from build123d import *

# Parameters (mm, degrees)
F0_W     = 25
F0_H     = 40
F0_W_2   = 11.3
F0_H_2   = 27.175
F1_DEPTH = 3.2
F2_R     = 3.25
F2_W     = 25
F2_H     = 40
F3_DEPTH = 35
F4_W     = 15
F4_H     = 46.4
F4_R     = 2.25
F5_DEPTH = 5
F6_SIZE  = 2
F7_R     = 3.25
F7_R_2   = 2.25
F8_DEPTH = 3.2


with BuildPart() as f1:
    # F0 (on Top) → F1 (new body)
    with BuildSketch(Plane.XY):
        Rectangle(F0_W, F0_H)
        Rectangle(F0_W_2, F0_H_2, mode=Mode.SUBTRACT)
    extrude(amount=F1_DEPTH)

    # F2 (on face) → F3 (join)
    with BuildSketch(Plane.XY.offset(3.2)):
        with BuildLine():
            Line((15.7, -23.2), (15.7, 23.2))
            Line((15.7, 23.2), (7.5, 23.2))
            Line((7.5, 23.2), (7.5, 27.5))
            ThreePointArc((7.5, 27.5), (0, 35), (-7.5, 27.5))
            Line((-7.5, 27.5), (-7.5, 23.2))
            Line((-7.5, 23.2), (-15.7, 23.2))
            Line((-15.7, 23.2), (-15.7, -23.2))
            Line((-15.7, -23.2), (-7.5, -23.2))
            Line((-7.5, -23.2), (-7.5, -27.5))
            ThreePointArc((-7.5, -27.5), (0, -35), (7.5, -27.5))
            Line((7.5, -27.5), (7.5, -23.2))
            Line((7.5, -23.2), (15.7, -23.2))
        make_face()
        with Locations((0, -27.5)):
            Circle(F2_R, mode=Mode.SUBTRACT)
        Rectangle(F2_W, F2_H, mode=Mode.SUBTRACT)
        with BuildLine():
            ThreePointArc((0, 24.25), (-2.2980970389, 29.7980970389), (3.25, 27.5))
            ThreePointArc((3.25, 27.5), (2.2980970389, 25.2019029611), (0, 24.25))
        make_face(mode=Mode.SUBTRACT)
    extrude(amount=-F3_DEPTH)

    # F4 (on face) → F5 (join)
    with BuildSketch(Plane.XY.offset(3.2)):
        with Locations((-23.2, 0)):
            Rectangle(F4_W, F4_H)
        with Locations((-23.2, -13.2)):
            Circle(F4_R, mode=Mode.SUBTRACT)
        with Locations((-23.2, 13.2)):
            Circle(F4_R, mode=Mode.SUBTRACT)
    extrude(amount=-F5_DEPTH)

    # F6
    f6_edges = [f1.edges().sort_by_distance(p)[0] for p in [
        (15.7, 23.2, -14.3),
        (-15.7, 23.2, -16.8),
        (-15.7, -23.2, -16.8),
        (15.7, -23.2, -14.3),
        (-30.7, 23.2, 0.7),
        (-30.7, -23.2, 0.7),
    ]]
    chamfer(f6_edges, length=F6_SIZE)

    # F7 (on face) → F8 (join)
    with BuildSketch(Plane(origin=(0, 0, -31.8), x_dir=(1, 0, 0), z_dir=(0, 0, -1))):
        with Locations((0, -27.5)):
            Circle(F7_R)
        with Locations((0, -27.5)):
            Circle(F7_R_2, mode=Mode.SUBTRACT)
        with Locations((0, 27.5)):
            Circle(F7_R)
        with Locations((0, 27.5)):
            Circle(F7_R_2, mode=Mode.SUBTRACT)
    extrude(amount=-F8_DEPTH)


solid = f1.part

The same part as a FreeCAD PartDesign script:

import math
import FreeCAD as App
import Part
import Sketcher
Q = App.Units.Quantity


def edges_at(feature, points):
    """Names of the edges that pass closest to the given points."""
    edges = feature.Shape.Edges
    near = lambda p: min(range(len(edges)), key=lambda i: edges[i].distToShape(Part.Vertex(*p))[0])
    return sorted({f"Edge{near(p) + 1}" for p in points})

doc = App.newDocument("Part")
body = doc.addObject("PartDesign::Body", "Body")

# Sketch on XY plane
sketch1 = doc.addObject("Sketcher::SketchObject", "Sketch")
body.addObject(sketch1)
sketch1.AttachmentSupport = (doc.XY_Plane, [""])
sketch1.MapMode = "FlatFace"
sketch1.addGeometry([
    Part.LineSegment(App.Vector(-12, 20, 0), App.Vector(-12, -20, 0)),  # 0
    Part.LineSegment(App.Vector(-12, -20, 0), App.Vector(12, -20, 0)),  # 1
    Part.LineSegment(App.Vector(12, -20, 0), App.Vector(12, 20, 0)),  # 2
    Part.LineSegment(App.Vector(12, 20, 0), App.Vector(-12, 20, 0)),  # 3
    Part.LineSegment(App.Vector(6, -14, 0), App.Vector(-6, -14, 0)),  # 4
    Part.LineSegment(App.Vector(-6, -14, 0), App.Vector(-6, 14, 0)),  # 5
    Part.LineSegment(App.Vector(-6, 14, 0), App.Vector(6, 14, 0)),  # 6
    Part.LineSegment(App.Vector(6, 14, 0), App.Vector(6, -14, 0)),  # 7
], False)
sketch1.addConstraint([
    Sketcher.Constraint("Coincident", 0, 2, 1, 1),
    Sketcher.Constraint("Coincident", 1, 2, 2, 1),
    Sketcher.Constraint("Coincident", 2, 2, 3, 1),
    Sketcher.Constraint("Coincident", 3, 2, 0, 1),
    Sketcher.Constraint("Coincident", 4, 2, 5, 1),
    Sketcher.Constraint("Coincident", 5, 2, 6, 1),
    Sketcher.Constraint("Coincident", 6, 2, 7, 1),
    Sketcher.Constraint("Coincident", 7, 2, 4, 1),
    Sketcher.Constraint("Vertical", 0),
    Sketcher.Constraint("Horizontal", 1),
    Sketcher.Constraint("Vertical", 2),
    Sketcher.Constraint("Horizontal", 3),
    Sketcher.Constraint("Horizontal", 4),
    Sketcher.Constraint("Vertical", 5),
    Sketcher.Constraint("Horizontal", 6),
    Sketcher.Constraint("Vertical", 7),
    Sketcher.Constraint("Symmetric", 0, 2, 2, 2, -1, 1),
    Sketcher.Constraint("Symmetric", 4, 2, 6, 2, -1, 1),
    Sketcher.Constraint("DistanceX", 1, 1, 1, 2, Q("25 mm")),
    Sketcher.Constraint("DistanceY", 0, 2, 0, 1, Q("40 mm")),
    Sketcher.Constraint("DistanceX", 4, 2, 4, 1, Q("11.3 mm")),
    Sketcher.Constraint("DistanceY", 5, 1, 5, 2, Q("27.175 mm")),
])
pad1 = doc.addObject("PartDesign::Pad", "Pad")
body.addObject(pad1)
pad1.Profile = sketch1
pad1.Length = 3.2

# Sketch on XY plane
sketch2 = doc.addObject("Sketcher::SketchObject", "Sketch001")
body.addObject(sketch2)
sketch2.AttachmentSupport = (doc.XY_Plane, [""])
sketch2.MapMode = "FlatFace"
sketch2.AttachmentOffset = App.Placement(App.Vector(0, 0, 3.2), App.Rotation())
sketch2.addGeometry([
    Part.LineSegment(App.Vector(15.7, -23.2, 0), App.Vector(15.7, 23.2, 0)),  # 0
    Part.LineSegment(App.Vector(15.7, 23.2, 0), App.Vector(7.5, 23.2, 0)),  # 1
    Part.LineSegment(App.Vector(7.5, 23.2, 0), App.Vector(7.5, 27.5, 0)),  # 2
    Part.ArcOfCircle(Part.Circle(App.Vector(0, 27.5, 0), App.Vector(0, 0, 1), 7.5), math.radians(0), math.radians(180)),  # 3
    Part.LineSegment(App.Vector(-7.5, 27.5, 0), App.Vector(-7.5, 23.2, 0)),  # 4
    Part.LineSegment(App.Vector(-7.5, 23.2, 0), App.Vector(-15.7, 23.2, 0)),  # 5
    Part.LineSegment(App.Vector(-15.7, 23.2, 0), App.Vector(-15.7, -23.2, 0)),  # 6
    Part.LineSegment(App.Vector(-15.7, -23.2, 0), App.Vector(-7.5, -23.2, 0)),  # 7
    Part.LineSegment(App.Vector(-7.5, -23.2, 0), App.Vector(-7.5, -27.5, 0)),  # 8
    Part.ArcOfCircle(Part.Circle(App.Vector(0, -27.5, 0), App.Vector(0, 0, 1), 7.5), math.radians(180), math.radians(360)),  # 9
    Part.LineSegment(App.Vector(7.5, -27.5, 0), App.Vector(7.5, -23.2, 0)),  # 10
    Part.LineSegment(App.Vector(7.5, -23.2, 0), App.Vector(15.7, -23.2, 0)),  # 11
    Part.Circle(App.Vector(0, -27.5, 0), App.Vector(0, 0, 1), 3.2),  # 12
    Part.LineSegment(App.Vector(12.5, -20, 0), App.Vector(-12.5, -20, 0)),  # 13
    Part.LineSegment(App.Vector(-12.5, -20, 0), App.Vector(-12.5, 20, 0)),  # 14
    Part.LineSegment(App.Vector(-12.5, 20, 0), App.Vector(12.5, 20, 0)),  # 15
    Part.LineSegment(App.Vector(12.5, 20, 0), App.Vector(12.5, -20, 0)),  # 16
    Part.ArcOfCircle(Part.Circle(App.Vector(0, 27.5, 0), App.Vector(0, 0, 1), 3.2), math.radians(-90), math.radians(0)),  # 17
    Part.ArcOfCircle(Part.Circle(App.Vector(0, 27.5, 0), App.Vector(0, 0, 1), 3.2), math.radians(0), math.radians(270)),  # 18
], False)
sketch2.addConstraint([
    Sketcher.Constraint("Coincident", 0, 2, 1, 1),
    Sketcher.Constraint("Coincident", 1, 2, 2, 1),
    Sketcher.Constraint("Tangent", 2, 2, 3, 1),
    Sketcher.Constraint("Tangent", 3, 2, 4, 1),
    Sketcher.Constraint("Coincident", 4, 2, 5, 1),
    Sketcher.Constraint("Coincident", 5, 2, 6, 1),
    Sketcher.Constraint("Coincident", 6, 2, 7, 1),
    Sketcher.Constraint("Coincident", 7, 2, 8, 1),
    Sketcher.Constraint("Tangent", 8, 2, 9, 1),
    Sketcher.Constraint("Tangent", 9, 2, 10, 1),
    Sketcher.Constraint("Coincident", 10, 2, 11, 1),
    Sketcher.Constraint("Coincident", 11, 2, 0, 1),
    Sketcher.Constraint("Coincident", 13, 2, 14, 1),
    Sketcher.Constraint("Coincident", 14, 2, 15, 1),
    Sketcher.Constraint("Coincident", 15, 2, 16, 1),
    Sketcher.Constraint("Coincident", 16, 2, 13, 1),
    Sketcher.Constraint("Tangent", 17, 1, 18, 2),
    Sketcher.Constraint("Coincident", 18, 1, 17, 2),
    Sketcher.Constraint("Vertical", 0),
    Sketcher.Constraint("Horizontal", 1),
    Sketcher.Constraint("Vertical", 2),
    Sketcher.Constraint("Vertical", 4),
    Sketcher.Constraint("Horizontal", 5),
    Sketcher.Constraint("Vertical", 6),
    Sketcher.Constraint("Horizontal", 7),
    Sketcher.Constraint("Vertical", 8),
    Sketcher.Constraint("Vertical", 10),
    Sketcher.Constraint("Horizontal", 11),
    Sketcher.Constraint("Horizontal", 13),
    Sketcher.Constraint("Vertical", 14),
    Sketcher.Constraint("Horizontal", 15),
    Sketcher.Constraint("Vertical", 16),
    Sketcher.Constraint("Coincident", 12, 3, 9, 3),
    Sketcher.Constraint("Coincident", 17, 3, 3, 3),
    Sketcher.Constraint("Equal", 3, 9),
    Sketcher.Constraint("Equal", 12, 17),
    Sketcher.Constraint("Symmetric", 3, 3, 9, 3, -1, 1),
    Sketcher.Constraint("Symmetric", 0, 2, 6, 2, -1, 1),
    Sketcher.Constraint("Symmetric", 13, 2, 15, 2, -1, 1),
    Sketcher.Constraint("Symmetric", 1, 2, 4, 2, -2),
    Sketcher.Constraint("PointOnObject", 17, 1, -2),
    Sketcher.Constraint("Horizontal", 7, 2, 10, 2),
    Sketcher.Constraint("Horizontal", 3, 2, 18, 1),
    Sketcher.Constraint("Diameter", 12, Q("6.5 mm")),
    Sketcher.Constraint("Radius", 3, Q("7.5 mm")),
    Sketcher.Constraint("DistanceX", 13, 2, 13, 1, Q("25 mm")),
    Sketcher.Constraint("DistanceY", 14, 1, 14, 2, Q("40 mm")),
    Sketcher.Constraint("DistanceX", 1, 2, 1, 1, Q("8.2 mm")),
    Sketcher.Constraint("DistanceY", 0, 1, 0, 2, Q("46.4 mm")),
    Sketcher.Constraint("DistanceY", 2, 1, 2, 2, Q("4.3 mm")),
])
pad2 = doc.addObject("PartDesign::Pad", "Pad001")
body.addObject(pad2)
pad2.Profile = sketch2
pad2.Length = 35
pad2.Reversed = True

# Sketch on XY plane
sketch3 = doc.addObject("Sketcher::SketchObject", "Sketch002")
body.addObject(sketch3)
sketch3.AttachmentSupport = (doc.XY_Plane, [""])
sketch3.MapMode = "FlatFace"
sketch3.AttachmentOffset = App.Placement(App.Vector(0, 0, 3.2), App.Rotation())
sketch3.addGeometry([
    Part.LineSegment(App.Vector(-30.7, 23.2, 0), App.Vector(-30.7, -23.2, 0)),  # 0
    Part.LineSegment(App.Vector(-30.7, -23.2, 0), App.Vector(-15.7, -23.2, 0)),  # 1
    Part.LineSegment(App.Vector(-15.7, -23.2, 0), App.Vector(-15.7, 23.2, 0)),  # 2
    Part.LineSegment(App.Vector(-15.7, 23.2, 0), App.Vector(-30.7, 23.2, 0)),  # 3
    Part.Circle(App.Vector(-23.2, -13.2, 0), App.Vector(0, 0, 1), 2.2),  # 4
    Part.Circle(App.Vector(-23.2, 13.2, 0), App.Vector(0, 0, 1), 2.2),  # 5
], False)
sketch3.addConstraint([
    Sketcher.Constraint("Coincident", 0, 2, 1, 1),
    Sketcher.Constraint("Coincident", 1, 2, 2, 1),
    Sketcher.Constraint("Coincident", 2, 2, 3, 1),
    Sketcher.Constraint("Coincident", 3, 2, 0, 1),
    Sketcher.Constraint("Vertical", 0),
    Sketcher.Constraint("Horizontal", 1),
    Sketcher.Constraint("Vertical", 2),
    Sketcher.Constraint("Horizontal", 3),
    Sketcher.Constraint("Equal", 4, 5),
    Sketcher.Constraint("Symmetric", 4, 3, 5, 3, -1),
    Sketcher.Constraint("Diameter", 4, Q("4.5 mm")),
    Sketcher.Constraint("DistanceX", 1, 1, 1, 2, Q("15 mm")),
    Sketcher.Constraint("DistanceY", 0, 2, 0, 1, Q("46.4 mm")),
    Sketcher.Constraint("DistanceY", 0, 2, 4, 3, Q("10 mm")),
    Sketcher.Constraint("DistanceY", 5, 3, 2, 2, Q("10 mm")),
    Sketcher.Constraint("DistanceX", 4, 3, -1, 1, Q("23.2 mm")),
    Sketcher.Constraint("DistanceX", 0, 2, -1, 1, Q("30.7 mm")),
])
pad3 = doc.addObject("PartDesign::Pad", "Pad002")
body.addObject(pad3)
pad3.Profile = sketch3
pad3.Length = 5
pad3.Reversed = True
doc.recompute()

chamfer = doc.addObject("PartDesign::Chamfer", "Chamfer")
body.addObject(chamfer)
chamfer.Base = (pad3, edges_at(pad3, [
    (15.7, 23.2, -14.3),
    (-15.7, 23.2, -16.8),
    (-15.7, -23.2, -16.8),
    (15.7, -23.2, -14.3),
    (-30.7, 23.2, 0.7),
    (-30.7, -23.2, 0.7),
]))
chamfer.Size = 2

# Sketch on XY plane
sketch4 = doc.addObject("Sketcher::SketchObject", "Sketch003")
body.addObject(sketch4)
sketch4.AttachmentSupport = (doc.XY_Plane, [""])
sketch4.MapMode = "FlatFace"
sketch4.AttachmentOffset = App.Placement(App.Vector(0, 0, -31.8), App.Rotation())
sketch4.addGeometry([
    Part.Circle(App.Vector(0, 27.5, 0), App.Vector(0, 0, 1), 3.2),
    Part.Circle(App.Vector(0, 27.5, 0), App.Vector(0, 0, 1), 2.2),
    Part.Circle(App.Vector(0, -27.5, 0), App.Vector(0, 0, 1), 3.2),
    Part.Circle(App.Vector(0, -27.5, 0), App.Vector(0, 0, 1), 2.2),
], False)
sketch4.addConstraint([
    Sketcher.Constraint("Coincident", 1, 3, 0, 3),
    Sketcher.Constraint("Coincident", 3, 3, 2, 3),
    Sketcher.Constraint("Equal", 0, 2),
    Sketcher.Constraint("Equal", 1, 3),
    Sketcher.Constraint("Symmetric", 0, 3, 2, 3, -1, 1),
    Sketcher.Constraint("PointOnObject", 0, 3, -2),
    Sketcher.Constraint("Diameter", 0, Q("6.5 mm")),
    Sketcher.Constraint("Diameter", 1, Q("4.5 mm")),
    Sketcher.Constraint("DistanceY", 2, 3, 0, 3, Q("55 mm")),
])
pad4 = doc.addObject("PartDesign::Pad", "Pad003")
body.addObject(pad4)
pad4.Profile = sketch4
pad4.Length = 3.2

doc.recompute()
